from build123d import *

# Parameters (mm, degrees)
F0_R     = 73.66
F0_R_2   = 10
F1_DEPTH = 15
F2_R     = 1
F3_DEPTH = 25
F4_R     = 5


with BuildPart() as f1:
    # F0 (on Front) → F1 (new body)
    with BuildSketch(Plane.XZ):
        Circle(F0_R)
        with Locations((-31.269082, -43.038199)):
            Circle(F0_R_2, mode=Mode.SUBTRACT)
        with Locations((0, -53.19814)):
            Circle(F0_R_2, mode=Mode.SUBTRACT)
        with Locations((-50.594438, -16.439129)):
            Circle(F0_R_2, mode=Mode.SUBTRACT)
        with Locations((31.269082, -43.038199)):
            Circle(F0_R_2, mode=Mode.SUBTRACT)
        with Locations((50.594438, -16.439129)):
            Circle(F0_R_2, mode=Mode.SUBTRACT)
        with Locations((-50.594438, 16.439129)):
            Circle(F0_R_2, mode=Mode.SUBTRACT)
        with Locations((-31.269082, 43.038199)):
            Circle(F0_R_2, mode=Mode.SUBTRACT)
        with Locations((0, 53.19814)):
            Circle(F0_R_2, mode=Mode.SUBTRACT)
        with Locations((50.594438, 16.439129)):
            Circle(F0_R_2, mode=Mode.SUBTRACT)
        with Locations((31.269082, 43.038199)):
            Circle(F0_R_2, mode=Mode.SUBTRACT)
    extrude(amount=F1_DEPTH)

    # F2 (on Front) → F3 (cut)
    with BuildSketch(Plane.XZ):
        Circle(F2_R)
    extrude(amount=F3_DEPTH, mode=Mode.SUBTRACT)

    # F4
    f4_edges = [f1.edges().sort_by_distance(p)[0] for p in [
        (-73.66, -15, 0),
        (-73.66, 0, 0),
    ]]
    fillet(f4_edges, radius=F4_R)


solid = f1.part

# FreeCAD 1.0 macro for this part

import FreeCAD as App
import Part
import Sketcher

V = App.Vector
Q = App.Units.Quantity


def edges_at(feature, points):
    """Names of the edges that pass closest to the given points."""
    edges = feature.Shape.Edges
    near = lambda p: min(range(len(edges)), key=lambda i: edges[i].distToShape(Part.Vertex(*p))[0])
    return sorted({f"Edge{near(p) + 1}" for p in points})

doc = App.newDocument("Part")
body = doc.addObject("PartDesign::Body", "Body")

# Sketch on XZ plane
sketch1 = doc.addObject("Sketcher::SketchObject", "Sketch")
body.addObject(sketch1)
sketch1.AttachmentSupport = (doc.XZ_Plane, [""])
sketch1.MapMode = "FlatFace"
sketch1.addGeometry(Part.Circle(V(0, 0, 0), V(0, 0, 1), 74), False)
sketch1.addGeometry(Part.Circle(V(-31, -43, 0), V(0, 0, 1), 10), False)
sketch1.addGeometry(Part.Circle(V(-51, -16, 0), V(0, 0, 1), 10), False)
sketch1.addGeometry(Part.Circle(V(0, -53, 0), V(0, 0, 1), 10), False)
sketch1.addGeometry(Part.Circle(V(31, -43, 0), V(0, 0, 1), 10), False)
sketch1.addGeometry(Part.Circle(V(51, -16, 0), V(0, 0, 1), 10), False)
sketch1.addGeometry(Part.Circle(V(-51, 16, 0), V(0, 0, 1), 10), False)
sketch1.addGeometry(Part.Circle(V(-31, 43, 0), V(0, 0, 1), 10), False)
sketch1.addGeometry(Part.Circle(V(51, 16, 0), V(0, 0, 1), 10), False)
sketch1.addGeometry(Part.Circle(V(0, 53, 0), V(0, 0, 1), 10), False)
sketch1.addGeometry(Part.Circle(V(31, 43, 0), V(0, 0, 1), 10), False)
sketch1.addConstraint(Sketcher.Constraint("Coincident", 0, 3, -1, 1))
sketch1.addConstraint(Sketcher.Constraint("Equal", 1, 2))
sketch1.addConstraint(Sketcher.Constraint("Equal", 2, 3))
sketch1.addConstraint(Sketcher.Constraint("Equal", 3, 4))
sketch1.addConstraint(Sketcher.Constraint("Equal", 4, 5))
sketch1.addConstraint(Sketcher.Constraint("Equal", 5, 6))
sketch1.addConstraint(Sketcher.Constraint("Equal", 6, 7))
sketch1.addConstraint(Sketcher.Constraint("Equal", 7, 8))
sketch1.addConstraint(Sketcher.Constraint("Equal", 8, 9))
sketch1.addConstraint(Sketcher.Constraint("Equal", 9, 10))
sketch1.addConstraint(Sketcher.Constraint("Symmetric", 5, 3, 6, 3, -1, 1))
sketch1.addConstraint(Sketcher.Constraint("Symmetric", 4, 3, 7, 3, -1, 1))
sketch1.addConstraint(Sketcher.Constraint("Symmetric", 2, 3, 8, 3, -1, 1))
sketch1.addConstraint(Sketcher.Constraint("Symmetric", 3, 3, 9, 3, -1, 1))
sketch1.addConstraint(Sketcher.Constraint("Symmetric", 1, 3, 10, 3, -1, 1))
sketch1.addConstraint(Sketcher.Constraint("Symmetric", 1, 3, 4, 3, -2))
sketch1.addConstraint(Sketcher.Constraint("Symmetric", 2, 3, 5, 3, -2))
sketch1.addConstraint(Sketcher.Constraint("PointOnObject", 3, 3, -2))
sketch1.addConstraint(Sketcher.Constraint("Diameter", 1, Q("20 mm")))
sketch1.addConstraint(Sketcher.Constraint("Diameter", 0, Q("147.32 mm")))
sketch1.addConstraint(Sketcher.Constraint("DistanceY", 1, 3, -1, 1, Q("43.038199 mm")))
sketch1.addConstraint(Sketcher.Constraint("DistanceY", 2, 3, -1, 1, Q("16.439129 mm")))
sketch1.addConstraint(Sketcher.Constraint("DistanceY", 3, 3, -1, 1, Q("53.19814 mm")))
sketch1.addConstraint(Sketcher.Constraint("DistanceX", 2, 3, 4, 3, Q("81.86352 mm")))
sketch1.addConstraint(Sketcher.Constraint("DistanceX", 1, 3, -1, 1, Q("31.269082 mm")))
pad1 = doc.addObject("PartDesign::Pad", "Pad")
body.addObject(pad1)
pad1.Profile = sketch1
pad1.Length = 15

# Sketch on XZ plane
sketch2 = doc.addObject("Sketcher::SketchObject", "Sketch001")
body.addObject(sketch2)
sketch2.AttachmentSupport = (doc.XZ_Plane, [""])
sketch2.MapMode = "FlatFace"
sketch2.addGeometry(Part.Circle(V(0, 0, 0), V(0, 0, 1), 1), False)
sketch2.addConstraint(Sketcher.Constraint("Coincident", 0, 3, -1, 1))
sketch2.addConstraint(Sketcher.Constraint("Diameter", 0, Q("2 mm")))
pocket1 = doc.addObject("PartDesign::Pocket", "Pocket")
body.addObject(pocket1)
pocket1.Profile = sketch2
pocket1.Length = 25
pocket1.Reversed = True
doc.recompute()

fillet = doc.addObject("PartDesign::Fillet", "Fillet")
body.addObject(fillet)
fillet.Base = (pocket1, edges_at(pocket1, [(-73.66, -15, 0), (-73.66, 0, 0)]))
fillet.Radius = 5

doc.recompute()
